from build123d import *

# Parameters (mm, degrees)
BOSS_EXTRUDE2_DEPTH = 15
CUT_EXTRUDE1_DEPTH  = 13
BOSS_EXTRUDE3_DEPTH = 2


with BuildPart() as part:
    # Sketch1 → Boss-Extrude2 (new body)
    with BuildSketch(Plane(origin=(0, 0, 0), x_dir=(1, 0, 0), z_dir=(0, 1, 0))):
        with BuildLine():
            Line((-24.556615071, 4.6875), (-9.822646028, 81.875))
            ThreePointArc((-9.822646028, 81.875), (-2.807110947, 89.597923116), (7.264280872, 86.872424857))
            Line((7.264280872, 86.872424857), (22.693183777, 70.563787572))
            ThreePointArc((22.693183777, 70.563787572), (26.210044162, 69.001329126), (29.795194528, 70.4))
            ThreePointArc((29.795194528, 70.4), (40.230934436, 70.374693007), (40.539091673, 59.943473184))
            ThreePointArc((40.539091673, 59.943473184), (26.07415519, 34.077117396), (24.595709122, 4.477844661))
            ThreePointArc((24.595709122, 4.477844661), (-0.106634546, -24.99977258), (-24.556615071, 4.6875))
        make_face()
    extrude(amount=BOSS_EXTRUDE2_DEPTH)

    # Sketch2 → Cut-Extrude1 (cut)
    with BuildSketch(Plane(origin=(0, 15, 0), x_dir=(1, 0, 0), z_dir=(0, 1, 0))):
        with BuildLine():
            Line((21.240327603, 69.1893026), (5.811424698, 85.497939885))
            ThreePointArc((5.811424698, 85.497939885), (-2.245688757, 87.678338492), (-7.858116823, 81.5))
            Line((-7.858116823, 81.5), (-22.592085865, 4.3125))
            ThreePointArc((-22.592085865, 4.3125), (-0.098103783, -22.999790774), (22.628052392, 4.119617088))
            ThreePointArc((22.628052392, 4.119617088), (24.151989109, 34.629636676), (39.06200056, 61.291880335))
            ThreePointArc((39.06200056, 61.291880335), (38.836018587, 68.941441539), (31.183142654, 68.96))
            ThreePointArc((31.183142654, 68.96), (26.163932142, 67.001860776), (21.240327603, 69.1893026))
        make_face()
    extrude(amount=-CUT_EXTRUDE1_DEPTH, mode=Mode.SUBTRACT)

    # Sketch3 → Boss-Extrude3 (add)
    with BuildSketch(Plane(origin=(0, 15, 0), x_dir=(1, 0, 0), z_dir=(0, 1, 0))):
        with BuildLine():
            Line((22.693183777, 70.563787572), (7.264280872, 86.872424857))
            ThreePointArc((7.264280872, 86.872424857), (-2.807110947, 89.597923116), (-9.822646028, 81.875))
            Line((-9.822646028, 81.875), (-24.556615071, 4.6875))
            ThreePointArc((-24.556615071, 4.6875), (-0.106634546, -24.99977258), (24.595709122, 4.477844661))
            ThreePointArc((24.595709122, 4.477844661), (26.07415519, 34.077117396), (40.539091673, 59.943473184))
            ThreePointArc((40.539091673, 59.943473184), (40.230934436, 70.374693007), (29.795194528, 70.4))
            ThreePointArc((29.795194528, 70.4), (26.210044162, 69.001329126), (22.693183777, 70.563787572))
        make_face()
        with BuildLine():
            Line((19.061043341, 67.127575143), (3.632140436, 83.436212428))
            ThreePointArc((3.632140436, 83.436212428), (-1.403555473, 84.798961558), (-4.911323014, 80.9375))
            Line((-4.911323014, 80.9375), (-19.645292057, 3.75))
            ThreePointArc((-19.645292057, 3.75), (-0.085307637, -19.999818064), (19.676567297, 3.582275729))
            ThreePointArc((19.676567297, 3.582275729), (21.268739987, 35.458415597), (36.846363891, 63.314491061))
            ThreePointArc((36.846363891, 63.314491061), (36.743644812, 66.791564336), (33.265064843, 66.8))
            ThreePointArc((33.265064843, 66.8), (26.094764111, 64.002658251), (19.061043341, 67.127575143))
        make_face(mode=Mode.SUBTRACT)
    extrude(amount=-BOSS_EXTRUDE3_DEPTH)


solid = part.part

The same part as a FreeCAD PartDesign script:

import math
import FreeCAD as App
import Part
import Sketcher

V = App.Vector
Q = App.Units.Quantity

doc = App.newDocument("Part")
params = doc.addObject("Spreadsheet::Sheet", "Params")
for row, (alias, value) in enumerate([
    ("sketch1_radius", "25 mm"),
    ("sketch1_radius2", "65 mm"),
    ("sketch1_radius3", "5 mm"),
    ("sketch1_radius4", "10 mm"),
    ("sketch1_radius5", "7.5 mm"),
    ("pad1_length", "15 mm"),
    ("sketch2_radius", "8 mm"),
    ("sketch2_radius2", "23 mm"),
    ("sketch2_radius3", "67 mm"),
    ("sketch2_radius4", "7 mm"),
    ("sketch2_radius5", "5.5 mm"),
    ("pocket1_length", "13 mm"),
    ("sketch3_radius", "10 mm"),
    ("sketch3_radius2", "25 mm"),
    ("sketch3_radius3", "65 mm"),
    ("sketch3_radius4", "5 mm"),
    ("sketch3_radius5", "7.5 mm"),
    ("pad2_length", "2 mm"),
], start=1):
    params.set(f"A{row}", alias)
    params.set(f"B{row}", "=" + value)
    params.setAlias(f"B{row}", alias)

body = doc.addObject("PartDesign::Body", "Body")

sketch1 = body.newObject("Sketcher::SketchObject", "Sketch")
sketch1.AttachmentSupport = (doc.getObject("XZ_Plane"), [""])
sketch1.MapMode = "FlatFace"
sketch1.addGeometry([
    Part.LineSegment(V(-10, -82, 0), V(-25, -5, 0)),
    Part.ArcOfCircle(Part.Circle(V(0, 0, 0), V(0, 0, 1), 25), math.radians(-10), math.radians(191)),
    Part.ArcOfCircle(Part.Circle(V(89, -16, 0), V(0, 0, 1), 65), math.radians(170), math.radians(222)),
    Part.ArcOfCircle(Part.Circle(V(35, -65, 0), V(0, 0, 1), 8), math.radians(-134), math.radians(42)),
    Part.ArcOfCircle(Part.Circle(V(26, -74, 0), V(0, 0, 1), 5), math.radians(46), math.radians(137)),
    Part.LineSegment(V(23, -71, 0), V(7, -87, 0)),
    Part.ArcOfCircle(Part.Circle(V(0, -80, 0), V(0, 0, 1), 10), math.radians(-169), math.radians(-43)),
], False)
sketch1.addConstraint([
    Sketcher.Constraint("Tangent", 0, 2, 1, 2),
    Sketcher.Constraint("Tangent", 1, 1, 2, 1),
    Sketcher.Constraint("Tangent", 2, 2, 3, 2),
    Sketcher.Constraint("Tangent", 3, 1, 4, 1),
    Sketcher.Constraint("Tangent", 4, 2, 5, 1),
    Sketcher.Constraint("Tangent", 5, 2, 6, 2),
    Sketcher.Constraint("Tangent", 6, 1, 0, 1),
    Sketcher.Constraint("Coincident", 1, 3, -1, 1),
    Sketcher.Constraint("PointOnObject", 6, 3, -2),
    Sketcher.Constraint("Radius", 1, Q("25 mm")),
    Sketcher.Constraint("Radius", 2, Q("65 mm")),
    Sketcher.Constraint("Radius", 4, Q("5 mm")),
    Sketcher.Constraint("Radius", 6, Q("10 mm")),
    Sketcher.Constraint("Radius", 3, Q("7.5 mm")),
    Sketcher.Constraint("DistanceX", -1, 1, 3, 3, Q("35 mm")),
    Sketcher.Constraint("DistanceY", 3, 3, -1, 1, Q("65 mm")),
    Sketcher.Constraint("DistanceY", 4, 3, -1, 1, Q("74 mm")),
    Sketcher.Constraint("DistanceY", 6, 3, -1, 1, Q("80 mm")),
])
sketch1.setExpression("Constraints[9]", "Params.sketch1_radius")
sketch1.setExpression("Constraints[10]", "Params.sketch1_radius2")
sketch1.setExpression("Constraints[11]", "Params.sketch1_radius3")
sketch1.setExpression("Constraints[12]", "Params.sketch1_radius4")
sketch1.setExpression("Constraints[13]", "Params.sketch1_radius5")
pad1 = body.newObject("PartDesign::Pad", "Pad")
pad1.Profile = sketch1
pad1.setExpression("Length", "Params.pad1_length")
pad1.Reversed = True

sketch2 = body.newObject("Sketcher::SketchObject", "Sketch001")
sketch2.AttachmentSupport = (doc.getObject("XZ_Plane"), [""])
sketch2.MapMode = "FlatFace"
sketch2.AttachmentOffset = App.Placement(V(0, 0, -15), App.Rotation())
sketch2.addGeometry([
    Part.LineSegment(V(21, -69, 0), V(6, -85, 0)),
    Part.ArcOfCircle(Part.Circle(V(0, -80, 0), V(0, 0, 1), 8), math.radians(-169), math.radians(-43)),
    Part.LineSegment(V(-8, -82, 0), V(-23, -4, 0)),
    Part.ArcOfCircle(Part.Circle(V(0, 0, 0), V(0, 0, 1), 23), math.radians(-10), math.radians(191)),
    Part.ArcOfCircle(Part.Circle(V(89, -16, 0), V(0, 0, 1), 67), math.radians(170), math.radians(222)),
    Part.ArcOfCircle(Part.Circle(V(35, -65, 0), V(0, 0, 1), 6), math.radians(-134), math.radians(42)),
    Part.ArcOfCircle(Part.Circle(V(26, -74, 0), V(0, 0, 1), 7), math.radians(46), math.radians(137)),
], False)
sketch2.addConstraint([
    Sketcher.Constraint("Tangent", 0, 2, 1, 2),
    Sketcher.Constraint("Tangent", 1, 1, 2, 1),
    Sketcher.Constraint("Tangent", 2, 2, 3, 2),
    Sketcher.Constraint("Tangent", 3, 1, 4, 1),
    Sketcher.Constraint("Tangent", 4, 2, 5, 2),
    Sketcher.Constraint("Tangent", 5, 1, 6, 1),
    Sketcher.Constraint("Tangent", 6, 2, 0, 1),
    Sketcher.Constraint("Coincident", 3, 3, -1, 1),
    Sketcher.Constraint("PointOnObject", 1, 3, -2),
    Sketcher.Constraint("Radius", 1, Q("8 mm")),
    Sketcher.Constraint("Radius", 3, Q("23 mm")),
    Sketcher.Constraint("Radius", 4, Q("67 mm")),
    Sketcher.Constraint("Radius", 6, Q("7 mm")),
    Sketcher.Constraint("Radius", 5, Q("5.5 mm")),
    Sketcher.Constraint("DistanceY", 1, 3, -1, 1, Q("80 mm")),
    Sketcher.Constraint("DistanceX", -1, 1, 5, 3, Q("35 mm")),
    Sketcher.Constraint("DistanceY", 5, 3, -1, 1, Q("65 mm")),
    Sketcher.Constraint("DistanceY", 6, 3, -1, 1, Q("74 mm")),
])
sketch2.setExpression("Constraints[9]", "Params.sketch2_radius")
sketch2.setExpression("Constraints[10]", "Params.sketch2_radius2")
sketch2.setExpression("Constraints[11]", "Params.sketch2_radius3")
sketch2.setExpression("Constraints[12]", "Params.sketch2_radius4")
sketch2.setExpression("Constraints[13]", "Params.sketch2_radius5")
pocket1 = body.newObject("PartDesign::Pocket", "Pocket")
pocket1.Profile = sketch2
pocket1.setExpression("Length", "Params.pocket1_length")
pocket1.Reversed = True

sketch3 = body.newObject("Sketcher::SketchObject", "Sketch002")
sketch3.AttachmentSupport = (doc.getObject("XZ_Plane"), [""])
sketch3.MapMode = "FlatFace"
sketch3.AttachmentOffset = App.Placement(V(0, 0, -15), App.Rotation())
sketch3.addGeometry([
    Part.LineSegment(V(22.7, -70.6, 0), V(7.3, -86.9, 0)),
    Part.ArcOfCircle(Part.Circle(V(0, -80, 0), V(0, 0, 1), 10), math.radians(-169), math.radians(-43)),
    Part.LineSegment(V(-9.8, -81.9, 0), V(-24.6, -4.7, 0)),
    Part.ArcOfCircle(Part.Circle(V(0, 0, 0), V(0, 0, 1), 25), math.radians(-10), math.radians(191)),
    Part.ArcOfCircle(Part.Circle(V(88.5, -16.1, 0), V(0, 0, 1), 65), math.radians(170), math.radians(222)),
    Part.ArcOfCircle(Part.Circle(V(35, -65, 0), V(0, 0, 1), 7.5), math.radians(-134), math.radians(42)),
    Part.ArcOfCircle(Part.Circle(V(26.3, -74, 0), V(0, 0, 1), 5), math.radians(46), math.radians(137)),
    Part.LineSegment(V(3.6, -83.4, 0), V(19.1, -67.1, 0)),
    Part.ArcOfCircle(Part.Circle(V(26.3, -74, 0), V(0, 0, 1), 10), math.radians(46), math.radians(137)),
    Part.ArcOfCircle(Part.Circle(V(35, -65, 0), V(0, 0, 1), 2.5), math.radians(-134), math.radians(42)),
    Part.ArcOfCircle(Part.Circle(V(88.5, -16.1, 0), V(0, 0, 1), 70), math.radians(170), math.radians(222)),
    Part.ArcOfCircle(Part.Circle(V(0, 0, 0), V(0, 0, 1), 20), math.radians(-10), math.radians(191)),
    Part.LineSegment(V(-19.6, -3.8, 0), V(-4.9, -80.9, 0)),
    Part.ArcOfCircle(Part.Circle(V(0, -80, 0), V(0, 0, 1), 5), math.radians(-169), math.radians(-43)),
], False)
sketch3.addConstraint([
    Sketcher.Constraint("Tangent", 0, 2, 1, 2),
    Sketcher.Constraint("Tangent", 1, 1, 2, 1),
    Sketcher.Constraint("Tangent", 2, 2, 3, 2),
    Sketcher.Constraint("Tangent", 3, 1, 4, 1),
    Sketcher.Constraint("Tangent", 4, 2, 5, 2),
    Sketcher.Constraint("Tangent", 5, 1, 6, 1),
    Sketcher.Constraint("Tangent", 6, 2, 0, 1),
    Sketcher.Constraint("Tangent", 7, 2, 8, 2),
    Sketcher.Constraint("Tangent", 8, 1, 9, 1),
    Sketcher.Constraint("Tangent", 9, 2, 10, 2),
    Sketcher.Constraint("Tangent", 10, 1, 11, 1),
    Sketcher.Constraint("Tangent", 11, 2, 12, 1),
    Sketcher.Constraint("Tangent", 12, 2, 13, 1),
    Sketcher.Constraint("Tangent", 13, 2, 7, 1),
    Sketcher.Constraint("Coincident", 3, 3, -1, 1),
    Sketcher.Constraint("Coincident", 11, 3, -1, 1),
    Sketcher.Constraint("Coincident", 8, 3, 6, 3),
    Sketcher.Constraint("Coincident", 9, 3, 5, 3),
    Sketcher.Constraint("Coincident", 10, 3, 4, 3),
    Sketcher.Constraint("Coincident", 13, 3, 1, 3),
    Sketcher.Constraint("Equal", 1, 8),
    Sketcher.Constraint("Equal", 6, 13),
    Sketcher.Constraint("PointOnObject", 1, 3, -2),
    Sketcher.Constraint("Radius", 1, Q("10 mm")),
    Sketcher.Constraint("Radius", 3, Q("25 mm")),
    Sketcher.Constraint("Radius", 4, Q("65 mm")),
    Sketcher.Constraint("Radius", 6, Q("5 mm")),
    Sketcher.Constraint("Radius", 5, Q("7.5 mm")),
    Sketcher.Constraint("DistanceY", 1, 3, -1, 1, Q("80 mm")),
    Sketcher.Constraint("DistanceX", -1, 1, 5, 3, Q("35 mm")),
    Sketcher.Constraint("DistanceY", 5, 3, -1, 1, Q("65 mm")),
    Sketcher.Constraint("DistanceY", 6, 3, -1, 1, Q("74 mm")),
])
sketch3.setExpression("Constraints[23]", "Params.sketch3_radius")
sketch3.setExpression("Constraints[24]", "Params.sketch3_radius2")
sketch3.setExpression("Constraints[25]", "Params.sketch3_radius3")
sketch3.setExpression("Constraints[26]", "Params.sketch3_radius4")
sketch3.setExpression("Constraints[27]", "Params.sketch3_radius5")
pad2 = body.newObject("PartDesign::Pad", "Pad001")
pad2.Profile = sketch3
pad2.setExpression("Length", "Params.pad2_length")

doc.recompute()
